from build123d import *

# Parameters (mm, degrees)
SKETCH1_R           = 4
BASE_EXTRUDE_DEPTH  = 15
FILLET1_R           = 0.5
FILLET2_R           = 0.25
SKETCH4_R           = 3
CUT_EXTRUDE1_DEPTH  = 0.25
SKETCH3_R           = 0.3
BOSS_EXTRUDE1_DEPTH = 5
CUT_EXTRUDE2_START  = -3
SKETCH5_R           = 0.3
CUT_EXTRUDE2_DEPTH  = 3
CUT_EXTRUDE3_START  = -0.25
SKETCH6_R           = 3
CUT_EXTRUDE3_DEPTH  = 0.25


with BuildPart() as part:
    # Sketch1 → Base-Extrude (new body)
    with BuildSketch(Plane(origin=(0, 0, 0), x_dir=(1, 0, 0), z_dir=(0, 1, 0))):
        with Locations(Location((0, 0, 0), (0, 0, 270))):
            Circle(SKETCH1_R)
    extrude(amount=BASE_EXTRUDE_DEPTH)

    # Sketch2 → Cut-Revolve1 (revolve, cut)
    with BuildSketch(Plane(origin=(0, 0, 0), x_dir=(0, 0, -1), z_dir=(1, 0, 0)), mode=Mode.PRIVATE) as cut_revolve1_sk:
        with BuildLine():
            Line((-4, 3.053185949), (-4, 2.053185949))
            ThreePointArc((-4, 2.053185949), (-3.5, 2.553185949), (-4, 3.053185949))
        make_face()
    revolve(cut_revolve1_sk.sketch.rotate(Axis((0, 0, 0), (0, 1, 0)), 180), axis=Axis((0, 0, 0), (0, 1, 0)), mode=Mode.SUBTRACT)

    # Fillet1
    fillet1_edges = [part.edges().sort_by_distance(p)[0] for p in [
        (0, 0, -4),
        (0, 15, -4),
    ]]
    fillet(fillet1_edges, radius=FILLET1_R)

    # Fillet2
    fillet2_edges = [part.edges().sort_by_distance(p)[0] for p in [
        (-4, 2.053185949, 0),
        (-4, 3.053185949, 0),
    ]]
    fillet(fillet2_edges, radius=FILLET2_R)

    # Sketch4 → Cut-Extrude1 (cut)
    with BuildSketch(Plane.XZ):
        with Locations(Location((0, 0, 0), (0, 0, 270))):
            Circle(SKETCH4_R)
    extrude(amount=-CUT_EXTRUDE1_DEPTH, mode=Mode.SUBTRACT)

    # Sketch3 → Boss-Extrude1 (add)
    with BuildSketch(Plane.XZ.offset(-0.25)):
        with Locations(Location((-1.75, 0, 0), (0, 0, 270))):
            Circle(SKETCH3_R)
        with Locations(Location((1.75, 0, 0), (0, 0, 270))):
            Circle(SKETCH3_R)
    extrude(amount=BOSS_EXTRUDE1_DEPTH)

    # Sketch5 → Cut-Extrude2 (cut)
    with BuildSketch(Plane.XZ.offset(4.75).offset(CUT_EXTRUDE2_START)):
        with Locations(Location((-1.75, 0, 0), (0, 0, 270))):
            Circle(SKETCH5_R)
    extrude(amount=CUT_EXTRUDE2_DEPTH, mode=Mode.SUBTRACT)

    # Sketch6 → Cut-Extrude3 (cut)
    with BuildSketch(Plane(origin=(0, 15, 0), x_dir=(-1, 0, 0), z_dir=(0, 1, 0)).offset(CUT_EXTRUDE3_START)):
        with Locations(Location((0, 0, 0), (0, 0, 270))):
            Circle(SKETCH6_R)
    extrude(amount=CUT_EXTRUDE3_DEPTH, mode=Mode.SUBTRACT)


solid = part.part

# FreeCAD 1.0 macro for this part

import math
import FreeCAD as App
import Part
import Sketcher

V = App.Vector
Q = App.Units.Quantity


def edges_at(feature, points):
    """Names of the edges that pass closest to the given points."""
    edges = feature.Shape.Edges
    near = lambda p: min(range(len(edges)), key=lambda i: edges[i].distToShape(Part.Vertex(*p))[0])
    return sorted({f"Edge{near(p) + 1}" for p in points})

doc = App.newDocument("Part")
body = doc.addObject("PartDesign::Body", "Body")

# Sketch on XZ plane
sketch1 = doc.addObject("Sketcher::SketchObject", "Sketch")
body.addObject(sketch1)
sketch1.AttachmentSupport = (doc.XZ_Plane, [""])
sketch1.MapMode = "FlatFace"
sketch1.addGeometry(Part.Circle(V(0, 0, 0), V(0, 0, 1), 4), False)
sketch1.addConstraint([
    Sketcher.Constraint("Coincident", 0, 3, -1, 1),
    Sketcher.Constraint("Diameter", 0, Q("8 mm")),
])
pad1 = doc.addObject("PartDesign::Pad", "Pad")
body.addObject(pad1)
pad1.Profile = sketch1
pad1.Length = 15
pad1.Reversed = True

# Sketch on YZ plane
sketch2 = doc.addObject("Sketcher::SketchObject", "Sketch001")
body.addObject(sketch2)
sketch2.AttachmentSupport = (doc.YZ_Plane, [""])
sketch2.MapMode = "FlatFace"
sketch2.addGeometry([
    Part.LineSegment(V(3.1, 4, 0), V(2.1, 4, 0)),
    Part.ArcOfCircle(Part.Circle(V(2.6, 4, 0), V(0, 0, 1), 0.5), math.radians(180), math.radians(360)),
], False)
sketch2.addConstraint([
    Sketcher.Constraint("Coincident", 0, 1, 1, 2),
    Sketcher.Constraint("Coincident", 1, 1, 0, 2),
    Sketcher.Constraint("Horizontal", 0),
    Sketcher.Constraint("Horizontal", 1, 3, 0, 1),
    Sketcher.Constraint("Radius", 1, Q("0.5 mm")),
    Sketcher.Constraint("DistanceY", -1, 1, 1, 3, Q("4 mm")),
    Sketcher.Constraint("DistanceX", -1, 1, 1, 3, Q("2.553186 mm")),
])
groove = doc.addObject("PartDesign::Groove", "Groove")
body.addObject(groove)
groove.Profile = sketch2
groove.ReferenceAxis = (sketch2, ["H_Axis"])
groove.Angle = 360
doc.recompute()

fillet = doc.addObject("PartDesign::Fillet", "Fillet")
body.addObject(fillet)
fillet.Base = (groove, edges_at(groove, [(0, 0, -4), (0, 15, -4)]))
fillet.Radius = 0.5
doc.recompute()

fillet2 = doc.addObject("PartDesign::Fillet", "Fillet001")
body.addObject(fillet2)
fillet2.Base = (fillet, edges_at(fillet, [(-4, 2.053, 0), (-4, 3.053, 0)]))
fillet2.Radius = 0.25

# Sketch on XZ plane
sketch3 = doc.addObject("Sketcher::SketchObject", "Sketch002")
body.addObject(sketch3)
sketch3.AttachmentSupport = (doc.XZ_Plane, [""])
sketch3.MapMode = "FlatFace"
sketch3.addGeometry(Part.Circle(V(0, 0, 0), V(0, 0, 1), 3), False)
sketch3.addConstraint([
    Sketcher.Constraint("Coincident", 0, 3, -1, 1),
    Sketcher.Constraint("Diameter", 0, Q("6 mm")),
])
pocket1 = doc.addObject("PartDesign::Pocket", "Pocket")
body.addObject(pocket1)
pocket1.Profile = sketch3
pocket1.Length = 0.25

# Sketch on XZ plane
sketch4 = doc.addObject("Sketcher::SketchObject", "Sketch003")
body.addObject(sketch4)
sketch4.AttachmentSupport = (doc.XZ_Plane, [""])
sketch4.MapMode = "FlatFace"
sketch4.AttachmentOffset = App.Placement(V(0, 0, -0.25), App.Rotation())
sketch4.addGeometry([
    Part.Circle(V(-1.75, 0, 0), V(0, 0, 1), 0.3),
    Part.Circle(V(1.75, 0, 0), V(0, 0, 1), 0.3),
], False)
sketch4.addConstraint([
    Sketcher.Constraint("Equal", 0, 1),
    Sketcher.Constraint("Symmetric", 0, 3, 1, 3, -1, 1),
    Sketcher.Constraint("PointOnObject", 0, 3, -1),
    Sketcher.Constraint("Diameter", 0, Q("0.6 mm")),
    Sketcher.Constraint("DistanceX", 0, 3, 1, 3, Q("3.5 mm")),
])
pad2 = doc.addObject("PartDesign::Pad", "Pad001")
body.addObject(pad2)
pad2.Profile = sketch4
pad2.Length = 5

# Sketch on XZ plane
sketch5 = doc.addObject("Sketcher::SketchObject", "Sketch004")
body.addObject(sketch5)
sketch5.AttachmentSupport = (doc.XZ_Plane, [""])
sketch5.MapMode = "FlatFace"
sketch5.AttachmentOffset = App.Placement(V(0, 0, 1.75), App.Rotation())
sketch5.addGeometry(Part.Circle(V(-1.75, 0, 0), V(0, 0, 1), 0.3), False)
sketch5.addConstraint([
    Sketcher.Constraint("PointOnObject", 0, 3, -1),
    Sketcher.Constraint("Diameter", 0, Q("0.6 mm")),
    Sketcher.Constraint("DistanceX", 0, 3, -1, 1, Q("1.75 mm")),
])
pocket2 = doc.addObject("PartDesign::Pocket", "Pocket001")
body.addObject(pocket2)
pocket2.Profile = sketch5
pocket2.Length = 3
pocket2.Reversed = True

# Sketch on XZ plane
sketch6 = doc.addObject("Sketcher::SketchObject", "Sketch005")
body.addObject(sketch6)
sketch6.AttachmentSupport = (doc.XZ_Plane, [""])
sketch6.MapMode = "FlatFace"
sketch6.AttachmentOffset = App.Placement(V(0, 0, -14.75), App.Rotation())
sketch6.addGeometry(Part.Circle(V(0, 0, 0), V(0, 0, 1), 3), False)
sketch6.addConstraint([
    Sketcher.Constraint("Coincident", 0, 3, -1, 1),
    Sketcher.Constraint("Diameter", 0, Q("6 mm")),
])
pocket3 = doc.addObject("PartDesign::Pocket", "Pocket002")
body.addObject(pocket3)
pocket3.Profile = sketch6
pocket3.Length = 0.25

doc.recompute()
